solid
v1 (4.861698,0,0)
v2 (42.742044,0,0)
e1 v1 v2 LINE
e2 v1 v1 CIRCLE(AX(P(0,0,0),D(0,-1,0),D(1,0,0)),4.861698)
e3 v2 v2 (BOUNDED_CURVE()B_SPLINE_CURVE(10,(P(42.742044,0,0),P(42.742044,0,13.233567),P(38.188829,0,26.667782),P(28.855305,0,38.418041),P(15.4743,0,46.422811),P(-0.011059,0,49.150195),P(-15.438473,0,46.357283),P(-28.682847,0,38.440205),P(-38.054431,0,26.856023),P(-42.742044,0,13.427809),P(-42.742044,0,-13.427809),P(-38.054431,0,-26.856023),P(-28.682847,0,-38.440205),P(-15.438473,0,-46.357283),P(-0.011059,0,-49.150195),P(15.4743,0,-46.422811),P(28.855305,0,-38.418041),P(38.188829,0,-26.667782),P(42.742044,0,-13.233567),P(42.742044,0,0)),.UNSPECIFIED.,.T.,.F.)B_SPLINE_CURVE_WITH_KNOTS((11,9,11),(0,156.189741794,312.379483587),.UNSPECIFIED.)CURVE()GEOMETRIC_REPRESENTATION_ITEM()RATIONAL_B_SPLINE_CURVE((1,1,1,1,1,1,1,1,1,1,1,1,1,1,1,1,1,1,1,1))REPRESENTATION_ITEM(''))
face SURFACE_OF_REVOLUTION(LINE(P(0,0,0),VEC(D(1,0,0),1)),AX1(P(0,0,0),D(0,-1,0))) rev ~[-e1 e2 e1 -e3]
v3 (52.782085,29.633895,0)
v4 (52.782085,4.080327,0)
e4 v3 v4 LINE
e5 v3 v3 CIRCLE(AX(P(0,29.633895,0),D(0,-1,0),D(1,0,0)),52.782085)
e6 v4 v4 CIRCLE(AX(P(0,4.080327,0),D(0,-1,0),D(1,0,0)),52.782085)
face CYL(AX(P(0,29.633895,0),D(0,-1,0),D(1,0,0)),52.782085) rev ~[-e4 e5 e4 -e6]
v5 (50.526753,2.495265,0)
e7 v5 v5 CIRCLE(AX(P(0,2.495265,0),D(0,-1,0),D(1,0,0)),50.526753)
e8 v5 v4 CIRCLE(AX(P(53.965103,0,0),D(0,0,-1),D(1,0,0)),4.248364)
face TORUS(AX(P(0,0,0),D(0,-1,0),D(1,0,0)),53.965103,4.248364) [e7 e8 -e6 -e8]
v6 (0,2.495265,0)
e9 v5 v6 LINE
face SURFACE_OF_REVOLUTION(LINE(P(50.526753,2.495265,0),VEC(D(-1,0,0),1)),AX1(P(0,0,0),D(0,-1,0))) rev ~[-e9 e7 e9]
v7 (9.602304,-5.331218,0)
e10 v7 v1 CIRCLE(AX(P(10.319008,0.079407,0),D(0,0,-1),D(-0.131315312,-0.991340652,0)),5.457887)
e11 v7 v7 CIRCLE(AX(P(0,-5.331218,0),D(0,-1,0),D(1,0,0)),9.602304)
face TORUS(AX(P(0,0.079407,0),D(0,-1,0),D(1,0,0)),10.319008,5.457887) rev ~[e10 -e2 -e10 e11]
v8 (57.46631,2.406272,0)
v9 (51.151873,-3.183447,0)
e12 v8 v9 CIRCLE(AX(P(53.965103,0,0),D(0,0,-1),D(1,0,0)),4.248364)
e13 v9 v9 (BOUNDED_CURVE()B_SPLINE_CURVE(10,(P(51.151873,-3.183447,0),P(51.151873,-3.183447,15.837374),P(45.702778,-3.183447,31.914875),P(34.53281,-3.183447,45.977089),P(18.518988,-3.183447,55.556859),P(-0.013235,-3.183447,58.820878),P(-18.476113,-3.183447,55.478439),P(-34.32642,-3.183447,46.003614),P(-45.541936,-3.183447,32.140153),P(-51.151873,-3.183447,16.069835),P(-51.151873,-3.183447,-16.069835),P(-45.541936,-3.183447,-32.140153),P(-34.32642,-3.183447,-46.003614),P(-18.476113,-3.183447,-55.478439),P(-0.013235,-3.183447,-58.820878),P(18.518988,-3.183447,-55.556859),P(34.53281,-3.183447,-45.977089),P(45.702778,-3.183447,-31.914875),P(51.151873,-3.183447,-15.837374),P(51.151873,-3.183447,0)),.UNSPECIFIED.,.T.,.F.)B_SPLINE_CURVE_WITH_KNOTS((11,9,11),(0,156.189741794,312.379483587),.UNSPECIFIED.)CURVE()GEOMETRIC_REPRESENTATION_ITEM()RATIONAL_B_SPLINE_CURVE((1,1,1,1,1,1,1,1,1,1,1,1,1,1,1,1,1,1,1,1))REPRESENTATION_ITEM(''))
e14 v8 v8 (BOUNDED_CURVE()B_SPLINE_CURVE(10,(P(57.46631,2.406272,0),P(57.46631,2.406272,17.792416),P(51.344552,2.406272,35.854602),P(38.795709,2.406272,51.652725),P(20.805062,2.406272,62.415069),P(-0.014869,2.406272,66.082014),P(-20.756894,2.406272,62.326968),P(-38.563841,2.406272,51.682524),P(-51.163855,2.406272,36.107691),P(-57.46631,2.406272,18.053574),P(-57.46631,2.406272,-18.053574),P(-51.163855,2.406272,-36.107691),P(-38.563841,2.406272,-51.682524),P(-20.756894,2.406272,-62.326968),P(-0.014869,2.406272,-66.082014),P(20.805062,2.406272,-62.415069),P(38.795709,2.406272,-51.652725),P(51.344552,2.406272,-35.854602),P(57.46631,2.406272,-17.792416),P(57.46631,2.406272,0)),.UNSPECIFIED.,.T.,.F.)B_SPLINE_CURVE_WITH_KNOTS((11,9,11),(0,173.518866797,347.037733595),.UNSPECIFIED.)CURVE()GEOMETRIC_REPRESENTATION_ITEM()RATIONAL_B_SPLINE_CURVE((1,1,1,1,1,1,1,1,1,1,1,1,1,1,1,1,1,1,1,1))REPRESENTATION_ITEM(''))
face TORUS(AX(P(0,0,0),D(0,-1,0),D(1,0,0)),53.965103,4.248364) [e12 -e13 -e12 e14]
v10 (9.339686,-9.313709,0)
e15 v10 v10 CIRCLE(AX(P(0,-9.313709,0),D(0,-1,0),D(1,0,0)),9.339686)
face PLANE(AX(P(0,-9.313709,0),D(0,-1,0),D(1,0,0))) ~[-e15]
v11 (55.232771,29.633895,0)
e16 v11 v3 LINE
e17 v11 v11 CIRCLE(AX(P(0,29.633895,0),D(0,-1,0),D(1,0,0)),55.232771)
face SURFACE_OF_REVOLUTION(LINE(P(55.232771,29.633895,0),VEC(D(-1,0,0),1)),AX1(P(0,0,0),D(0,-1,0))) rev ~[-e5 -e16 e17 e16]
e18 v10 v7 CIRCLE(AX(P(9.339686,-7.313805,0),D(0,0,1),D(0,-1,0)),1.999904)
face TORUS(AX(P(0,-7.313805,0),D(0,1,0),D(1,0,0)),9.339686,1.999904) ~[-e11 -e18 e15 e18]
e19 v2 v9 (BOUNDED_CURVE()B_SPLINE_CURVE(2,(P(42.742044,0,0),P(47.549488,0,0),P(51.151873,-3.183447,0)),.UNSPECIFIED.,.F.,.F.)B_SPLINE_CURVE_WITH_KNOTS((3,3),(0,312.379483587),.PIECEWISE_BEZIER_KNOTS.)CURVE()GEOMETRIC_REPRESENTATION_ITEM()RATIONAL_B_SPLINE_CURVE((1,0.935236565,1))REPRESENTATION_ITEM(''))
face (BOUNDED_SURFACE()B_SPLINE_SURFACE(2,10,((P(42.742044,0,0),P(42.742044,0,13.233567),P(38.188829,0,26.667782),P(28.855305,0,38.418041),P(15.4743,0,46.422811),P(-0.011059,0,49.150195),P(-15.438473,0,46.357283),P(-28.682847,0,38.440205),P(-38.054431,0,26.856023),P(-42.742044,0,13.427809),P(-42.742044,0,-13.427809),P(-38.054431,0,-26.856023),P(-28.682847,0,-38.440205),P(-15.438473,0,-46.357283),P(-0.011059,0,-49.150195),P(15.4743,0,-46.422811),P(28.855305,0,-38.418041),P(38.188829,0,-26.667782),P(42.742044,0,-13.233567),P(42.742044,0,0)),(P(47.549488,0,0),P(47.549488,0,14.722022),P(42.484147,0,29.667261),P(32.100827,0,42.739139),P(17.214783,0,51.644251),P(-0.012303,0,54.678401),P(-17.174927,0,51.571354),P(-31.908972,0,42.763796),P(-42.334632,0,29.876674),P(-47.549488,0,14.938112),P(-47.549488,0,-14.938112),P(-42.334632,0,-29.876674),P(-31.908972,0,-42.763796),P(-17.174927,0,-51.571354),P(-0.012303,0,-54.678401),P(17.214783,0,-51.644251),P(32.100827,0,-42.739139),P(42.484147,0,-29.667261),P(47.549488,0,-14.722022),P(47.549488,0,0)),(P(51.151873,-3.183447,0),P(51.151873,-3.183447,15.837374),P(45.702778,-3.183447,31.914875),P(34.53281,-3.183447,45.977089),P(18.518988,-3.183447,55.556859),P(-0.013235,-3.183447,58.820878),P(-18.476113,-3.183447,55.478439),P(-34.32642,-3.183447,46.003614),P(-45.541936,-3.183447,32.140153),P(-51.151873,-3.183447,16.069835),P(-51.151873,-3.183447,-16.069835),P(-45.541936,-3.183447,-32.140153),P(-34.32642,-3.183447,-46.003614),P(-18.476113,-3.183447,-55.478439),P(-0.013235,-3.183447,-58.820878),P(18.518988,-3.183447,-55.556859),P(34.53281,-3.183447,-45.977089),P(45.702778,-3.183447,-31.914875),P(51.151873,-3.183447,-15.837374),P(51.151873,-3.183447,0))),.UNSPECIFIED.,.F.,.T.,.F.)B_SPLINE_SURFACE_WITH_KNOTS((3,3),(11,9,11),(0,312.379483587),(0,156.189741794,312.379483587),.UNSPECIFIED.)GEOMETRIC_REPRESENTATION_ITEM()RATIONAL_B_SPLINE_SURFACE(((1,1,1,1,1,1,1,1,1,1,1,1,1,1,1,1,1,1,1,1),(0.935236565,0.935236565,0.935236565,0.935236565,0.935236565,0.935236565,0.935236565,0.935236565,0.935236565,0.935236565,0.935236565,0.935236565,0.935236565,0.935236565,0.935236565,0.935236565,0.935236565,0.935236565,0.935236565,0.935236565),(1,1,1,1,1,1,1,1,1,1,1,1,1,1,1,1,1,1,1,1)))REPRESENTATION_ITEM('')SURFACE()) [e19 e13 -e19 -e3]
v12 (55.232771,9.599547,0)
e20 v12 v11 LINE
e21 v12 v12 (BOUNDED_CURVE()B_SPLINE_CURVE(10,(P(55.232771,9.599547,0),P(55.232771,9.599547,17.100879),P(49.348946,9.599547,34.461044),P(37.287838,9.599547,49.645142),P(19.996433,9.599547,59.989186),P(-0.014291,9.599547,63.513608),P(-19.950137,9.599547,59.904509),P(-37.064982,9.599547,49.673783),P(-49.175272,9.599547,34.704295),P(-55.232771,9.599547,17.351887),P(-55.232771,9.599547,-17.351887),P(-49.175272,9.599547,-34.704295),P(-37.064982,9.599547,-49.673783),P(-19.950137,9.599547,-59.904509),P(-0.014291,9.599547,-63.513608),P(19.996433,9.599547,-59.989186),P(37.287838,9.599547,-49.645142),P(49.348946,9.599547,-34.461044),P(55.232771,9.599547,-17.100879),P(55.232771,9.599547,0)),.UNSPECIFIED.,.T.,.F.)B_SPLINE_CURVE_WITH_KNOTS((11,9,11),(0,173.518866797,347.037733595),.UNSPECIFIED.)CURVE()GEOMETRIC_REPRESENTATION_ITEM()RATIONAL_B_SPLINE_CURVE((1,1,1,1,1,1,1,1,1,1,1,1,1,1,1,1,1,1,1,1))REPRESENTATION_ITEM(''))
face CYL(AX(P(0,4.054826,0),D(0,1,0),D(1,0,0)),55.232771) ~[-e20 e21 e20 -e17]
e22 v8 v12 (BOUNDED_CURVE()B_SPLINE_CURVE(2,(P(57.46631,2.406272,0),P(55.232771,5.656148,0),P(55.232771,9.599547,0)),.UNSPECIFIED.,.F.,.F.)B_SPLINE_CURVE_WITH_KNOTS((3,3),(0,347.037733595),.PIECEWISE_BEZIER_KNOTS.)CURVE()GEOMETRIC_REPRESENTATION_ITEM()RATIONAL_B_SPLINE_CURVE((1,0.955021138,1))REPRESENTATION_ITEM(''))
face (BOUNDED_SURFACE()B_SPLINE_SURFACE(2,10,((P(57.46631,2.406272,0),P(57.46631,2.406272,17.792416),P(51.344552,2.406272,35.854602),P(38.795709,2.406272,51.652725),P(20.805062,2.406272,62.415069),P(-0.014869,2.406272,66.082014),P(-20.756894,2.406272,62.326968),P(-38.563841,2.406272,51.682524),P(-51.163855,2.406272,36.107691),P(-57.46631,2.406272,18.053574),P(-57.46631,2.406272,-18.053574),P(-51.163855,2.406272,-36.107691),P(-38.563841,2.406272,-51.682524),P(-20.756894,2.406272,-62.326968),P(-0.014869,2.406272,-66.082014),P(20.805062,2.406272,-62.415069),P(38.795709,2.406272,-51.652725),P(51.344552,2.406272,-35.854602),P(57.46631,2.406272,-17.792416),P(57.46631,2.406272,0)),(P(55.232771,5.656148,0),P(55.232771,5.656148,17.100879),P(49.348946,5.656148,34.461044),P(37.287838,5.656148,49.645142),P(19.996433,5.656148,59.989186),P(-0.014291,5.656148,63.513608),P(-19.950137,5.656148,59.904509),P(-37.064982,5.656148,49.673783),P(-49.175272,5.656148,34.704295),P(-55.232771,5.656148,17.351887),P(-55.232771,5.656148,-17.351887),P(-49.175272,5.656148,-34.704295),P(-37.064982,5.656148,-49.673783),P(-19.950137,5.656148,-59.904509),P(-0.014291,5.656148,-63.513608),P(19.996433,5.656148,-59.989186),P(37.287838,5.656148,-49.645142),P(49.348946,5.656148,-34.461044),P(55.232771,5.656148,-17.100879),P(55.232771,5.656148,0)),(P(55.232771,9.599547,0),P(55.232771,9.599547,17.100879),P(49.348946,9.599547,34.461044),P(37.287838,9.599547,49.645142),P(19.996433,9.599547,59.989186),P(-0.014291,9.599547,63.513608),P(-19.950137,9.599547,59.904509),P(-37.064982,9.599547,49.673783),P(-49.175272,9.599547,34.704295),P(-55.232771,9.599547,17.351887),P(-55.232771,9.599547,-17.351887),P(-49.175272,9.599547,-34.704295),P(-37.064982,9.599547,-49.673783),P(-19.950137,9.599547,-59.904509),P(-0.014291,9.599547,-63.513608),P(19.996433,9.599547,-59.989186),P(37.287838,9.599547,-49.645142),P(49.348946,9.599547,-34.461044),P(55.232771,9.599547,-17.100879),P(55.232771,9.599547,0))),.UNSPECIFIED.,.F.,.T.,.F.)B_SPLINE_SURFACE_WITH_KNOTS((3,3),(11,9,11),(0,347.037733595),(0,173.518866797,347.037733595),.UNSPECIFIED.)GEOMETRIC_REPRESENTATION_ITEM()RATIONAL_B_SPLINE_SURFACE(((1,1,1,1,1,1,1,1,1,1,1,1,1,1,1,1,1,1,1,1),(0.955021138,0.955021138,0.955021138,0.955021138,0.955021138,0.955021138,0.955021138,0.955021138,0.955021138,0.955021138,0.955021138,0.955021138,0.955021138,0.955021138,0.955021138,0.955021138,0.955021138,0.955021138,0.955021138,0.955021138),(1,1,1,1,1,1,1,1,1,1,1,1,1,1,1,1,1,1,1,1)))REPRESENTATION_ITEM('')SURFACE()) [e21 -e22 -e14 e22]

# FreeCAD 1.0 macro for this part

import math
import FreeCAD as App
import Part
import Sketcher
Q = App.Units.Quantity


def edges_at(feature, points):
    """Names of the edges that pass closest to the given points."""
    edges = feature.Shape.Edges
    near = lambda p: min(range(len(edges)), key=lambda i: edges[i].distToShape(Part.Vertex(*p))[0])
    return sorted({f"Edge{near(p) + 1}" for p in points})

doc = App.newDocument("Part")
body = doc.addObject("PartDesign::Body", "Body")

# Sketch on XY plane
sketch1 = body.newObject("Sketcher::SketchObject", "Sketch")
sketch1.AttachmentSupport = (doc.getObject("XY_Plane"), [""])
sketch1.MapMode = "FlatFace"
sketch1.addGeometry(Part.LineSegment(App.Vector(52.8, 29.6, 0), App.Vector(52.8, 4.1, 0)), False)
sketch1.addGeometry(Part.ArcOfCircle(Part.Circle(App.Vector(54, 0, 0), App.Vector(0, 0, 1), 4.2), math.radians(106), math.radians(144)), False)
sketch1.addGeometry(Part.LineSegment(App.Vector(50.5, 2.5, 0), App.Vector(0, 2.5, 0)), False)
sketch1.addGeometry(Part.LineSegment(App.Vector(0, 2.5, 0), App.Vector(0, 0, 0)), False)
sketch1.addGeometry(Part.LineSegment(App.Vector(0, 0, 0), App.Vector(49.7, 0, 0)), False)
sketch1.addGeometry(Part.ArcOfCircle(Part.Circle(App.Vector(54, 0, 0), App.Vector(0, 0, 1), 4.2), math.radians(180), math.radians(433)), False)
sketch1.addGeometry(Part.LineSegment(App.Vector(55.2, 4.1, 0), App.Vector(55.2, 29.6, 0)), False)
sketch1.addGeometry(Part.LineSegment(App.Vector(55.2, 29.6, 0), App.Vector(52.8, 29.6, 0)), False)
sketch1.addConstraint(Sketcher.Constraint("Coincident", 0, 2, 1, 1))
sketch1.addConstraint(Sketcher.Constraint("Coincident", 1, 2, 2, 1))
sketch1.addConstraint(Sketcher.Constraint("Coincident", 2, 2, 3, 1))
sketch1.addConstraint(Sketcher.Constraint("Coincident", 3, 2, 4, 1))
sketch1.addConstraint(Sketcher.Constraint("Coincident", 4, 2, 5, 1))
sketch1.addConstraint(Sketcher.Constraint("Coincident", 5, 2, 6, 1))
sketch1.addConstraint(Sketcher.Constraint("Coincident", 6, 2, 7, 1))
sketch1.addConstraint(Sketcher.Constraint("Coincident", 7, 2, 0, 1))
sketch1.addConstraint(Sketcher.Constraint("Vertical", 0))
sketch1.addConstraint(Sketcher.Constraint("Horizontal", 2))
sketch1.addConstraint(Sketcher.Constraint("Vertical", 3))
sketch1.addConstraint(Sketcher.Constraint("Horizontal", 4))
sketch1.addConstraint(Sketcher.Constraint("Vertical", 6))
sketch1.addConstraint(Sketcher.Constraint("Horizontal", 7))
sketch1.addConstraint(Sketcher.Constraint("Coincident", 3, 2, -1, 1))
sketch1.addConstraint(Sketcher.Constraint("Coincident", 5, 3, 1, 3))
sketch1.addConstraint(Sketcher.Constraint("Equal", 1, 5))
sketch1.addConstraint(Sketcher.Constraint("PointOnObject", 1, 3, -1))
sketch1.addConstraint(Sketcher.Constraint("Radius", 1, 4.248364))
sketch1.addConstraint(Sketcher.Constraint("DistanceY", 1, 2, 5, 2, Q("0.0614 in")))
sketch1.addConstraint(Sketcher.Constraint("DistanceX", 4, 1, 4, 2, 49.716739))
sketch1.addConstraint(Sketcher.Constraint("DistanceY", 0, 2, 0, 1, 25.553568))
sketch1.addConstraint(Sketcher.Constraint("DistanceY", 6, 1, 6, 2, 25.579068))
sketch1.addConstraint(Sketcher.Constraint("DistanceX", 2, 2, 2, 1, 50.526753))

# Sketch on XZ plane
sketch2 = body.newObject("Sketcher::SketchObject", "Sketch001")
sketch2.AttachmentSupport = (doc.getObject("XZ_Plane"), [""])
sketch2.MapMode = "FlatFace"
sketch2.addGeometry(Part.Circle(App.Vector(0, 0, 0), App.Vector(0, 0, 1), 55), False)
sketch2.addConstraint(Sketcher.Constraint("Coincident", 0, 3, -1, 1))
sketch2.addConstraint(Sketcher.Constraint("Diameter", 0, 109.643629))
doc.recompute()

additivepipe = body.newObject("PartDesign::AdditivePipe", "AdditivePipe")
additivepipe.Profile = sketch1
additivepipe.Spine = (sketch2, ["Edge1"])
doc.recompute()

fillet = body.newObject("PartDesign::Fillet", "Fillet")
fillet.Base = (additivepipe, edges_at(additivepipe, [(-49.717, 0, 0), (-55.233, 4.055, 0)]))
fillet.Radius = Q("0.5 in")

# Sketch on XY plane
sketch3 = body.newObject("Sketcher::SketchObject", "Sketch002")
sketch3.AttachmentSupport = (doc.getObject("XY_Plane"), [""])
sketch3.MapMode = "FlatFace"
sketch3.addGeometry(Part.ArcOfCircle(Part.Circle(App.Vector(10.3, 0.1, 0), App.Vector(0, 0, 1), 5.5), math.radians(-179), math.radians(-98)), False)
sketch3.addGeometry(Part.LineSegment(App.Vector(4.9, 0, 0), App.Vector(0, 0, 0)), False)
sketch3.addGeometry(Part.LineSegment(App.Vector(0, 0, 0), App.Vector(0, -9.3, 0)), False)
sketch3.addGeometry(Part.LineSegment(App.Vector(0, -9.3, 0), App.Vector(9.3, -9.3, 0)), False)
sketch3.addGeometry(Part.ArcOfCircle(Part.Circle(App.Vector(9.3, -7.3, 0), App.Vector(0, 0, 1), 2), math.radians(-90), math.radians(82)), False)
sketch3.addConstraint(Sketcher.Constraint("Coincident", 0, 1, 1, 1))
sketch3.addConstraint(Sketcher.Constraint("Coincident", 1, 2, 2, 1))
sketch3.addConstraint(Sketcher.Constraint("Coincident", 2, 2, 3, 1))
sketch3.addConstraint(Sketcher.Constraint("Tangent", 3, 2, 4, 1))
sketch3.addConstraint(Sketcher.Constraint("Tangent", 4, 2, 0, 2))
sketch3.addConstraint(Sketcher.Constraint("Horizontal", 1))
sketch3.addConstraint(Sketcher.Constraint("Vertical", 2))
sketch3.addConstraint(Sketcher.Constraint("Horizontal", 3))
sketch3.addConstraint(Sketcher.Constraint("Coincident", 1, 2, -1, 1))
sketch3.addConstraint(Sketcher.Constraint("DistanceX", 1, 2, 1, 1, 4.861698))
sketch3.addConstraint(Sketcher.Constraint("Radius", 0, 5.457887))
sketch3.addConstraint(Sketcher.Constraint("Radius", 4, 1.999904))
sketch3.addConstraint(Sketcher.Constraint("DistanceY", 2, 2, 2, 1, 9.313709))
sketch3.addConstraint(Sketcher.Constraint("DistanceX", 3, 1, 3, 2, 9.339686))
revolution = body.newObject("PartDesign::Revolution", "Revolution")
revolution.Profile = sketch3
revolution.ReferenceAxis = (sketch3, ["V_Axis"])
revolution.Angle = 360

doc.recompute()
